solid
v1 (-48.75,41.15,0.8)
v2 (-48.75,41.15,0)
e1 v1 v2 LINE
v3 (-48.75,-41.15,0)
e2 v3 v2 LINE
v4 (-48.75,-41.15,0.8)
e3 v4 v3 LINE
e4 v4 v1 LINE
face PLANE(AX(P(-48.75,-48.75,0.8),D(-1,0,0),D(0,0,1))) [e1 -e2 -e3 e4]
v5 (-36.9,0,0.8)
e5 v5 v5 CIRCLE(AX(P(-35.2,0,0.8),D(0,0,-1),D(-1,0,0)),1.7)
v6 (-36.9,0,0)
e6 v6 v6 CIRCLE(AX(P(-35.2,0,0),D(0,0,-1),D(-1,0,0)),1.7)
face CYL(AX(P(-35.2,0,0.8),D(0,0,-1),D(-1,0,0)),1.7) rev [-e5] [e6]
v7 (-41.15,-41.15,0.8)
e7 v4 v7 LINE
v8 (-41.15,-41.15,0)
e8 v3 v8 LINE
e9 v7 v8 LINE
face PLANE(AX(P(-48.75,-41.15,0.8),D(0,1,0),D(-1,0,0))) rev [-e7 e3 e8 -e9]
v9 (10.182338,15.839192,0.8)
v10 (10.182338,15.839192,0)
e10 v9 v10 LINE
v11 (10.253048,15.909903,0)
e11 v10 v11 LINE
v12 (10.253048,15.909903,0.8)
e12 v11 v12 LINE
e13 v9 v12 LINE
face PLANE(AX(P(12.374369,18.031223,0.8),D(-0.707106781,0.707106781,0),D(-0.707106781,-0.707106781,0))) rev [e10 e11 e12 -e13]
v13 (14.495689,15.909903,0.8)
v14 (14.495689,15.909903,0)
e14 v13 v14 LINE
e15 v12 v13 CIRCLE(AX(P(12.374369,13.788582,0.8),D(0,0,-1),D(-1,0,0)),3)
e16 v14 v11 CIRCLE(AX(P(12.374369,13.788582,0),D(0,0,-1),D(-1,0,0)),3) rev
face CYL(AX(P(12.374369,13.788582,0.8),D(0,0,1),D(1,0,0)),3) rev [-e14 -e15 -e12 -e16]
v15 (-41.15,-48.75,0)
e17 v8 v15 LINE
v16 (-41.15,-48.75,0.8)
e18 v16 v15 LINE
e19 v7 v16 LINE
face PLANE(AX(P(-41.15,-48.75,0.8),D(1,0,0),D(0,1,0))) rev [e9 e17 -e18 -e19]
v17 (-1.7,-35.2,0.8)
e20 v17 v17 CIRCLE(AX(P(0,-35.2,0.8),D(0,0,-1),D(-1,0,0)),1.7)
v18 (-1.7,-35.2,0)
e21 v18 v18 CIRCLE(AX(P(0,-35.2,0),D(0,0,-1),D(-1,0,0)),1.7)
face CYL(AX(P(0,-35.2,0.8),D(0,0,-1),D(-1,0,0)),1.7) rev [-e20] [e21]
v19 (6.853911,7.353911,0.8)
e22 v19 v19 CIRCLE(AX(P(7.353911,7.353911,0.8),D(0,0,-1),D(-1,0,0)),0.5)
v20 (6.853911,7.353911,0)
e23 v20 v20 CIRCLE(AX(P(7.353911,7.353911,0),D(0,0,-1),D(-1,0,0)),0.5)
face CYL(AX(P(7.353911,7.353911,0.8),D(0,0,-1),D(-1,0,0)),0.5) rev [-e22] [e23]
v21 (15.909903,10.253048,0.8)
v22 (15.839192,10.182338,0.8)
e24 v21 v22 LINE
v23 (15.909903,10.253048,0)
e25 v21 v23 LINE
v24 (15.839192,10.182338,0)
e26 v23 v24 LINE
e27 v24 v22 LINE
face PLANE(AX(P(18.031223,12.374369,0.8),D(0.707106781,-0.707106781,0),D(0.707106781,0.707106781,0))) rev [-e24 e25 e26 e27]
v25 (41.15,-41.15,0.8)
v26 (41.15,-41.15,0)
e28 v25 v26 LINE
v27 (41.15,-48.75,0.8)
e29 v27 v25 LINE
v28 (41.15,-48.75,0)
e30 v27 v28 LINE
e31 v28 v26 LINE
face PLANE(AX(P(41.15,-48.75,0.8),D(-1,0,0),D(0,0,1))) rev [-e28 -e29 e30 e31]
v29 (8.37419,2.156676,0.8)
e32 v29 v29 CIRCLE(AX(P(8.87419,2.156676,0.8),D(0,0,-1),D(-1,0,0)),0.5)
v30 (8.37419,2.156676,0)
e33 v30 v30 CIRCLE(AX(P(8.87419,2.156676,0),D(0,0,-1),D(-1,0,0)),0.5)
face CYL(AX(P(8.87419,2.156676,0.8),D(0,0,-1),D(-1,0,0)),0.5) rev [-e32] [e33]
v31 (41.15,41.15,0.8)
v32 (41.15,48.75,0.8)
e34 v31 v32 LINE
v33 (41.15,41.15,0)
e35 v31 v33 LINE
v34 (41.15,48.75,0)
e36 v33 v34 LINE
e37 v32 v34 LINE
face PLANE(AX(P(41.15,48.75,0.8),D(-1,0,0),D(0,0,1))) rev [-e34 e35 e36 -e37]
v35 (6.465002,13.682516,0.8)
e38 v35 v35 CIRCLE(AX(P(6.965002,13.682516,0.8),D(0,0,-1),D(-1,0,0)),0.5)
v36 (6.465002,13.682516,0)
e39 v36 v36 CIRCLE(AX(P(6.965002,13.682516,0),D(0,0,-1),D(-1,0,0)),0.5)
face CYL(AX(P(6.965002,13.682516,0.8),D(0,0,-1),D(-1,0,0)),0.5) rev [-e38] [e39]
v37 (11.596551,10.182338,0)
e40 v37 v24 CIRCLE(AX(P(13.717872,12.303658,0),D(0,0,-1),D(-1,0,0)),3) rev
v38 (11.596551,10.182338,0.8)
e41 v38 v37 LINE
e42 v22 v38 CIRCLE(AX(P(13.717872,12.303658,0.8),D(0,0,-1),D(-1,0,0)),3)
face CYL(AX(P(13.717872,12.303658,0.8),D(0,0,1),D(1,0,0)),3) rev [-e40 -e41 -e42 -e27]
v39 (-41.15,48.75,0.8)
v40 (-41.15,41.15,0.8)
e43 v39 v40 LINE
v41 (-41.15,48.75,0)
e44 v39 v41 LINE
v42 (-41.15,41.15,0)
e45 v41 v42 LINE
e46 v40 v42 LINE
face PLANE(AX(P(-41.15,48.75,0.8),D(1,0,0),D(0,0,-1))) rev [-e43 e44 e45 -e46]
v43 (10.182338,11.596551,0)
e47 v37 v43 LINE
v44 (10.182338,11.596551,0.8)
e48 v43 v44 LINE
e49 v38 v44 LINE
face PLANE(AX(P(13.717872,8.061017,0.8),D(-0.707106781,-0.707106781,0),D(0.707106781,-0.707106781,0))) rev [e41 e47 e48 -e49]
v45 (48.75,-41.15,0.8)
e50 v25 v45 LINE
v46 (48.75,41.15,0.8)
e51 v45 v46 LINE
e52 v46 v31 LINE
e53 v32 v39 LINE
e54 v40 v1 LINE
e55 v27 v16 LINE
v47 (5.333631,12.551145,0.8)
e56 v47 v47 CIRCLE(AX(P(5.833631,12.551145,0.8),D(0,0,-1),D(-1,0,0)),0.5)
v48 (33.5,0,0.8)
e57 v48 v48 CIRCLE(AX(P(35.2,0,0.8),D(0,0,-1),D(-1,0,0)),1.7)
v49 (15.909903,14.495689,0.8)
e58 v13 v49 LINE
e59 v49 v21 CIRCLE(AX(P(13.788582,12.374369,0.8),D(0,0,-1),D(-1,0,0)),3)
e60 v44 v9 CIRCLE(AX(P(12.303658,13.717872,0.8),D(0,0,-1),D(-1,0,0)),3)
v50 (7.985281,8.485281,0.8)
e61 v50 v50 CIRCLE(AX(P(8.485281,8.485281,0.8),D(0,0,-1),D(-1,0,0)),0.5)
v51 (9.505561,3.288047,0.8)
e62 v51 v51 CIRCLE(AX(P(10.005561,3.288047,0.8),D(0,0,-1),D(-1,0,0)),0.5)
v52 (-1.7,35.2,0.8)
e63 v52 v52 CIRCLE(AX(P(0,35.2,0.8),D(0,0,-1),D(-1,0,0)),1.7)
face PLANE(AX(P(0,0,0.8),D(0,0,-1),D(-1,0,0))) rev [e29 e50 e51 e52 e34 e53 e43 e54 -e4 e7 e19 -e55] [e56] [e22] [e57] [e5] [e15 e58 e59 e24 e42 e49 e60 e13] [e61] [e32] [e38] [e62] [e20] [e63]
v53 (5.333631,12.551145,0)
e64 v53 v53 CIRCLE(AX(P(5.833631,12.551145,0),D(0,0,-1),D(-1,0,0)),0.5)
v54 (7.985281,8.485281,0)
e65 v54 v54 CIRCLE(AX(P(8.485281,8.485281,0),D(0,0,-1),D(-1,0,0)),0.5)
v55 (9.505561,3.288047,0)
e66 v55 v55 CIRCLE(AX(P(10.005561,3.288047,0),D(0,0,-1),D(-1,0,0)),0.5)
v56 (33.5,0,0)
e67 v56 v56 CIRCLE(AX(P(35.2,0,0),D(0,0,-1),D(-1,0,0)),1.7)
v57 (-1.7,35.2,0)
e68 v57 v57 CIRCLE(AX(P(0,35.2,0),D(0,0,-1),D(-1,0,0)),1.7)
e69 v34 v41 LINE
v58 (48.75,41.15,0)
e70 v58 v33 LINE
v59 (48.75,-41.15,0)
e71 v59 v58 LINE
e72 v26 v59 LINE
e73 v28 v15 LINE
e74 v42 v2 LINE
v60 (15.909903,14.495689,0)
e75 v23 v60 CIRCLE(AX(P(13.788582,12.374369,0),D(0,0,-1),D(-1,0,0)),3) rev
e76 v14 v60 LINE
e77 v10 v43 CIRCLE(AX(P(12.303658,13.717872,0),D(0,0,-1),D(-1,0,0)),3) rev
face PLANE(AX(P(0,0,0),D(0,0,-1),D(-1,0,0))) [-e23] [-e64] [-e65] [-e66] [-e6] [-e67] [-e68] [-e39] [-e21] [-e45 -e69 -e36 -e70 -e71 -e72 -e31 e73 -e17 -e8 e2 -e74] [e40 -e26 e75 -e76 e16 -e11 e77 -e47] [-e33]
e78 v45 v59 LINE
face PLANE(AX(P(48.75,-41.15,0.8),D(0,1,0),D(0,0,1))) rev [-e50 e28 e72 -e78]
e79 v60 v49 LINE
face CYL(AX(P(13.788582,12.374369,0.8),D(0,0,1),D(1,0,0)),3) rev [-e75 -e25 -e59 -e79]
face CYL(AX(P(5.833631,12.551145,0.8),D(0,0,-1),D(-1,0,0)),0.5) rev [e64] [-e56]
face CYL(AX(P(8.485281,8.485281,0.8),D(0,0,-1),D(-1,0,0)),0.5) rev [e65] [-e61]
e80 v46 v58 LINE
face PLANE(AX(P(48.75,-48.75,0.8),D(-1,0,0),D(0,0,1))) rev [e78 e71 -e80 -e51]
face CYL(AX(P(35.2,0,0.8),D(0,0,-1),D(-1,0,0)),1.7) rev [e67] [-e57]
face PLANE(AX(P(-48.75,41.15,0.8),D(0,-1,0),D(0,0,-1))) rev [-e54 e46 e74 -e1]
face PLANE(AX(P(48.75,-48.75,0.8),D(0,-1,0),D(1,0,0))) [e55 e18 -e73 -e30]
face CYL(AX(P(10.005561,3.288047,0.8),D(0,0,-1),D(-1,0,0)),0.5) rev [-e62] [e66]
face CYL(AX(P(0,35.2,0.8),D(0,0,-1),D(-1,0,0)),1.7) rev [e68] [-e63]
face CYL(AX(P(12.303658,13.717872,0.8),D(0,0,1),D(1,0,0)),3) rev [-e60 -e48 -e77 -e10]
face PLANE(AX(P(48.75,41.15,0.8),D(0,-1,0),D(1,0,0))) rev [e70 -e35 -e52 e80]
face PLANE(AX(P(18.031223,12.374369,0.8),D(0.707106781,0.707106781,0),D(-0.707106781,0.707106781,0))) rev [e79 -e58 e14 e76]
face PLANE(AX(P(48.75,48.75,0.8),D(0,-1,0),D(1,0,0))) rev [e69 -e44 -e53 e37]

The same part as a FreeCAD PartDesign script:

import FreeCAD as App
import Part
import Sketcher

V = App.Vector
Q = App.Units.Quantity


def edges_at(feature, points):
    """Names of the edges that pass closest to the given points."""
    edges = feature.Shape.Edges
    near = lambda p: min(range(len(edges)), key=lambda i: edges[i].distToShape(Part.Vertex(*p))[0])
    return sorted({f"Edge{near(p) + 1}" for p in points})

doc = App.newDocument("Part")
body = doc.addObject("PartDesign::Body", "Body")

# Sketch on XY plane
sketch1 = doc.addObject("Sketcher::SketchObject", "Sketch")
body.addObject(sketch1)
sketch1.AttachmentSupport = (doc.XY_Plane, [""])
sketch1.MapMode = "FlatFace"
sketch1.addGeometry(Part.LineSegment(V(-49, 49, 0), V(-49, -49, 0)), False)
sketch1.addGeometry(Part.LineSegment(V(-49, -49, 0), V(49, -49, 0)), False)
sketch1.addGeometry(Part.LineSegment(V(49, -49, 0), V(49, 49, 0)), False)
sketch1.addGeometry(Part.LineSegment(V(49, 49, 0), V(-49, 49, 0)), False)
sketch1.addConstraint(Sketcher.Constraint("Coincident", 0, 2, 1, 1))
sketch1.addConstraint(Sketcher.Constraint("Coincident", 1, 2, 2, 1))
sketch1.addConstraint(Sketcher.Constraint("Coincident", 2, 2, 3, 1))
sketch1.addConstraint(Sketcher.Constraint("Coincident", 3, 2, 0, 1))
sketch1.addConstraint(Sketcher.Constraint("Vertical", 0))
sketch1.addConstraint(Sketcher.Constraint("Horizontal", 1))
sketch1.addConstraint(Sketcher.Constraint("Vertical", 2))
sketch1.addConstraint(Sketcher.Constraint("Horizontal", 3))
sketch1.addConstraint(Sketcher.Constraint("Symmetric", 0, 2, 2, 2, -1, 1))
sketch1.addConstraint(Sketcher.Constraint("Equal", 3, 0))
sketch1.addConstraint(Sketcher.Constraint("DistanceX", 1, 1, 1, 2, Q("97.5 mm")))
pad1 = doc.addObject("PartDesign::Pad", "Pad")
body.addObject(pad1)
pad1.Profile = sketch1
pad1.Length = 0.8

# Sketch on XY plane
sketch2 = doc.addObject("Sketcher::SketchObject", "Sketch001")
body.addObject(sketch2)
sketch2.AttachmentSupport = (doc.XY_Plane, [""])
sketch2.MapMode = "FlatFace"
sketch2.addGeometry(Part.LineSegment(V(49, 49, 0), V(49, 41, 0)), False)
sketch2.addGeometry(Part.LineSegment(V(49, 41, 0), V(41, 41, 0)), False)
sketch2.addGeometry(Part.LineSegment(V(41, 41, 0), V(41, 49, 0)), False)
sketch2.addGeometry(Part.LineSegment(V(41, 49, 0), V(49, 49, 0)), False)
sketch2.addGeometry(Part.LineSegment(V(49, -41, 0), V(49, -49, 0)), False)
sketch2.addGeometry(Part.LineSegment(V(49, -49, 0), V(41, -49, 0)), False)
sketch2.addGeometry(Part.LineSegment(V(41, -49, 0), V(41, -41, 0)), False)
sketch2.addGeometry(Part.LineSegment(V(41, -41, 0), V(49, -41, 0)), False)
sketch2.addGeometry(Part.LineSegment(V(-41, -41, 0), V(-41, -49, 0)), False)
sketch2.addGeometry(Part.LineSegment(V(-41, -49, 0), V(-49, -49, 0)), False)
sketch2.addGeometry(Part.LineSegment(V(-49, -49, 0), V(-49, -41, 0)), False)
sketch2.addGeometry(Part.LineSegment(V(-49, -41, 0), V(-41, -41, 0)), False)
sketch2.addGeometry(Part.LineSegment(V(-41, 49, 0), V(-41, 41, 0)), False)
sketch2.addGeometry(Part.LineSegment(V(-41, 41, 0), V(-49, 41, 0)), False)
sketch2.addGeometry(Part.LineSegment(V(-49, 41, 0), V(-49, 49, 0)), False)
sketch2.addGeometry(Part.LineSegment(V(-49, 49, 0), V(-41, 49, 0)), False)
sketch2.addConstraint(Sketcher.Constraint("Coincident", 0, 2, 1, 1))
sketch2.addConstraint(Sketcher.Constraint("Coincident", 1, 2, 2, 1))
sketch2.addConstraint(Sketcher.Constraint("Coincident", 2, 2, 3, 1))
sketch2.addConstraint(Sketcher.Constraint("Coincident", 3, 2, 0, 1))
sketch2.addConstraint(Sketcher.Constraint("Coincident", 4, 2, 5, 1))
sketch2.addConstraint(Sketcher.Constraint("Coincident", 5, 2, 6, 1))
sketch2.addConstraint(Sketcher.Constraint("Coincident", 6, 2, 7, 1))
sketch2.addConstraint(Sketcher.Constraint("Coincident", 7, 2, 4, 1))
sketch2.addConstraint(Sketcher.Constraint("Coincident", 8, 2, 9, 1))
sketch2.addConstraint(Sketcher.Constraint("Coincident", 9, 2, 10, 1))
sketch2.addConstraint(Sketcher.Constraint("Coincident", 10, 2, 11, 1))
sketch2.addConstraint(Sketcher.Constraint("Coincident", 11, 2, 8, 1))
sketch2.addConstraint(Sketcher.Constraint("Coincident", 12, 2, 13, 1))
sketch2.addConstraint(Sketcher.Constraint("Coincident", 13, 2, 14, 1))
sketch2.addConstraint(Sketcher.Constraint("Coincident", 14, 2, 15, 1))
sketch2.addConstraint(Sketcher.Constraint("Coincident", 15, 2, 12, 1))
sketch2.addConstraint(Sketcher.Constraint("Vertical", 0))
sketch2.addConstraint(Sketcher.Constraint("Horizontal", 1))
sketch2.addConstraint(Sketcher.Constraint("Vertical", 2))
sketch2.addConstraint(Sketcher.Constraint("Horizontal", 3))
sketch2.addConstraint(Sketcher.Constraint("Vertical", 4))
sketch2.addConstraint(Sketcher.Constraint("Horizontal", 5))
sketch2.addConstraint(Sketcher.Constraint("Vertical", 6))
sketch2.addConstraint(Sketcher.Constraint("Horizontal", 7))
sketch2.addConstraint(Sketcher.Constraint("Vertical", 8))
sketch2.addConstraint(Sketcher.Constraint("Horizontal", 9))
sketch2.addConstraint(Sketcher.Constraint("Vertical", 10))
sketch2.addConstraint(Sketcher.Constraint("Horizontal", 11))
sketch2.addConstraint(Sketcher.Constraint("Vertical", 12))
sketch2.addConstraint(Sketcher.Constraint("Horizontal", 13))
sketch2.addConstraint(Sketcher.Constraint("Vertical", 14))
sketch2.addConstraint(Sketcher.Constraint("Horizontal", 15))
sketch2.addConstraint(Sketcher.Constraint("Symmetric", 2, 2, 8, 2, -1, 1))
sketch2.addConstraint(Sketcher.Constraint("Symmetric", 0, 2, 10, 2, -1, 1))
sketch2.addConstraint(Sketcher.Constraint("Symmetric", 6, 2, 12, 2, -1, 1))
sketch2.addConstraint(Sketcher.Constraint("Symmetric", 4, 2, 14, 2, -1, 1))
sketch2.addConstraint(Sketcher.Constraint("Symmetric", 5, 2, 8, 2, -2))
sketch2.addConstraint(Sketcher.Constraint("Symmetric", 7, 2, 10, 2, -2))
sketch2.addConstraint(Sketcher.Constraint("Equal", 15, 0))
sketch2.addConstraint(Sketcher.Constraint("DistanceX", 1, 2, 1, 1, Q("7.6 mm")))
sketch2.addConstraint(Sketcher.Constraint("DistanceY", 4, 2, 0, 2, Q("89.9 mm")))
sketch2.addConstraint(Sketcher.Constraint("DistanceX", 8, 2, 5, 2, Q("82.3 mm")))
pocket1 = doc.addObject("PartDesign::Pocket", "Pocket")
body.addObject(pocket1)
pocket1.Profile = sketch2
pocket1.Type = "ThroughAll"
pocket1.Reversed = True

# Sketch on XY plane
sketch3 = doc.addObject("Sketcher::SketchObject", "Sketch002")
body.addObject(sketch3)
sketch3.AttachmentSupport = (doc.XY_Plane, [""])
sketch3.MapMode = "FlatFace"
sketch3.addGeometry(Part.Circle(V(0, 35.2, 0), V(0, 0, 1), 1.7), False)
sketch3.addGeometry(Part.Circle(V(-35.2, 0, 0), V(0, 0, 1), 1.7), False)
sketch3.addGeometry(Part.Circle(V(0, -35.2, 0), V(0, 0, 1), 1.7), False)
sketch3.addGeometry(Part.Circle(V(35.2, 0, 0), V(0, 0, 1), 1.7), False)
sketch3.addConstraint(Sketcher.Constraint("Equal", 0, 1))
sketch3.addConstraint(Sketcher.Constraint("Equal", 1, 2))
sketch3.addConstraint(Sketcher.Constraint("Equal", 2, 3))
sketch3.addConstraint(Sketcher.Constraint("Symmetric", 0, 3, 2, 3, -1, 1))
sketch3.addConstraint(Sketcher.Constraint("Symmetric", 1, 3, 3, 3, -1, 1))
sketch3.addConstraint(Sketcher.Constraint("PointOnObject", 0, 3, -2))
sketch3.addConstraint(Sketcher.Constraint("PointOnObject", 1, 3, -1))
sketch3.addConstraint(Sketcher.Constraint("Diameter", 0, Q("3.4 mm")))
sketch3.addConstraint(Sketcher.Constraint("DistanceY", -1, 1, 0, 3, Q("35.2 mm")))
sketch3.addConstraint(Sketcher.Constraint("DistanceX", 1, 3, -1, 1, Q("35.2 mm")))
pocket2 = doc.addObject("PartDesign::Pocket", "Pocket001")
body.addObject(pocket2)
pocket2.Profile = sketch3
pocket2.Type = "ThroughAll"
pocket2.Reversed = True

# Sketch on XY plane
sketch4 = doc.addObject("Sketcher::SketchObject", "Sketch003")
body.addObject(sketch4)
sketch4.AttachmentSupport = (doc.XY_Plane, [""])
sketch4.MapMode = "FlatFace"
sketch4.addGeometry(Part.LineSegment(V(18, 12, 0), V(14, 8, 0)), False)
sketch4.addGeometry(Part.LineSegment(V(14, 8, 0), V(8, 14, 0)), False)
sketch4.addGeometry(Part.LineSegment(V(8, 14, 0), V(12, 18, 0)), False)
sketch4.addGeometry(Part.LineSegment(V(12, 18, 0), V(18, 12, 0)), False)
sketch4.addConstraint(Sketcher.Constraint("Coincident", 0, 2, 1, 1))
sketch4.addConstraint(Sketcher.Constraint("Coincident", 1, 2, 2, 1))
sketch4.addConstraint(Sketcher.Constraint("Coincident", 2, 2, 3, 1))
sketch4.addConstraint(Sketcher.Constraint("Coincident", 3, 2, 0, 1))
sketch4.addConstraint(Sketcher.Constraint("Perpendicular", 0, 1))
sketch4.addConstraint(Sketcher.Constraint("Perpendicular", 1, 2))
sketch4.addConstraint(Sketcher.Constraint("Perpendicular", 2, 3))
sketch4.addConstraint(Sketcher.Constraint("Angle", 0, Q("-135 deg")))
sketch4.addConstraint(Sketcher.Constraint("Distance", 1, Q("8 mm")))
sketch4.addConstraint(Sketcher.Constraint("Distance", 0, Q("6.1 mm")))
sketch4.addConstraint(Sketcher.Constraint("DistanceX", -1, 1, 0, 2, Q("13.717872 mm")))
sketch4.addConstraint(Sketcher.Constraint("DistanceY", -1, 1, 1, 2, Q("13.717872 mm")))
pocket3 = doc.addObject("PartDesign::Pocket", "Pocket002")
body.addObject(pocket3)
pocket3.Profile = sketch4
pocket3.Type = "ThroughAll"
pocket3.Reversed = True

# Sketch on XY plane
sketch5 = doc.addObject("Sketcher::SketchObject", "Sketch004")
body.addObject(sketch5)
sketch5.AttachmentSupport = (doc.XY_Plane, [""])
sketch5.MapMode = "FlatFace"
sketch5.addGeometry(Part.Circle(V(7, 13.7, 0), V(0, 0, 1), 0.5), False)
sketch5.addGeometry(Part.Circle(V(5.8, 12.6, 0), V(0, 0, 1), 0.5), False)
sketch5.addGeometry(Part.Circle(V(8.5, 8.5, 0), V(0, 0, 1), 0.5), False)
sketch5.addGeometry(Part.Circle(V(7.4, 7.4, 0), V(0, 0, 1), 0.5), False)
sketch5.addGeometry(Part.Circle(V(10, 3.3, 0), V(0, 0, 1), 0.5), False)
sketch5.addGeometry(Part.Circle(V(8.9, 2.2, 0), V(0, 0, 1), 0.5), False)
sketch5.addConstraint(Sketcher.Constraint("Equal", 0, 1))
sketch5.addConstraint(Sketcher.Constraint("Equal", 1, 2))
sketch5.addConstraint(Sketcher.Constraint("Equal", 2, 3))
sketch5.addConstraint(Sketcher.Constraint("Equal", 3, 4))
sketch5.addConstraint(Sketcher.Constraint("Equal", 4, 5))
sketch5.addConstraint(Sketcher.Constraint("Diameter", 0, Q("1 mm")))
sketch5.addConstraint(Sketcher.Constraint("DistanceX", -1, 1, 0, 3, Q("6.965002 mm")))
sketch5.addConstraint(Sketcher.Constraint("DistanceY", 4, 3, 1, 3, Q("9.263099 mm")))
sketch5.addConstraint(Sketcher.Constraint("DistanceX", -1, 1, 1, 3, Q("5.833631 mm")))
sketch5.addConstraint(Sketcher.Constraint("DistanceX", -1, 1, 2, 3, Q("8.485281 mm")))
sketch5.addConstraint(Sketcher.Constraint("DistanceY", -1, 1, 2, 3, Q("8.485281 mm")))
sketch5.addConstraint(Sketcher.Constraint("DistanceX", -1, 1, 3, 3, Q("7.353911 mm")))
sketch5.addConstraint(Sketcher.Constraint("DistanceY", -1, 1, 3, 3, Q("7.353911 mm")))
sketch5.addConstraint(Sketcher.Constraint("DistanceX", -1, 1, 4, 3, Q("10.005561 mm")))
sketch5.addConstraint(Sketcher.Constraint("DistanceX", -1, 1, 5, 3, Q("8.87419 mm")))
sketch5.addConstraint(Sketcher.Constraint("DistanceY", 1, 3, 0, 3, Q("1.131371 mm")))
sketch5.addConstraint(Sketcher.Constraint("DistanceY", 5, 3, 4, 3, Q("1.131371 mm")))
sketch5.addConstraint(Sketcher.Constraint("DistanceY", -1, 1, 0, 3, Q("13.682516 mm")))
pocket4 = doc.addObject("PartDesign::Pocket", "Pocket003")
body.addObject(pocket4)
pocket4.Profile = sketch5
pocket4.Type = "ThroughAll"
pocket4.Reversed = True
doc.recompute()

fillet = doc.addObject("PartDesign::Fillet", "Fillet")
body.addObject(fillet)
fillet.Base = (pocket4, edges_at(pocket4, [
    (18.031, 12.374, 0.4),
    (12.374, 18.031, 0.4),
    (8.061, 13.718, 0.4),
    (13.718, 8.061, 0.4),
]))
fillet.Radius = 3

doc.recompute()
